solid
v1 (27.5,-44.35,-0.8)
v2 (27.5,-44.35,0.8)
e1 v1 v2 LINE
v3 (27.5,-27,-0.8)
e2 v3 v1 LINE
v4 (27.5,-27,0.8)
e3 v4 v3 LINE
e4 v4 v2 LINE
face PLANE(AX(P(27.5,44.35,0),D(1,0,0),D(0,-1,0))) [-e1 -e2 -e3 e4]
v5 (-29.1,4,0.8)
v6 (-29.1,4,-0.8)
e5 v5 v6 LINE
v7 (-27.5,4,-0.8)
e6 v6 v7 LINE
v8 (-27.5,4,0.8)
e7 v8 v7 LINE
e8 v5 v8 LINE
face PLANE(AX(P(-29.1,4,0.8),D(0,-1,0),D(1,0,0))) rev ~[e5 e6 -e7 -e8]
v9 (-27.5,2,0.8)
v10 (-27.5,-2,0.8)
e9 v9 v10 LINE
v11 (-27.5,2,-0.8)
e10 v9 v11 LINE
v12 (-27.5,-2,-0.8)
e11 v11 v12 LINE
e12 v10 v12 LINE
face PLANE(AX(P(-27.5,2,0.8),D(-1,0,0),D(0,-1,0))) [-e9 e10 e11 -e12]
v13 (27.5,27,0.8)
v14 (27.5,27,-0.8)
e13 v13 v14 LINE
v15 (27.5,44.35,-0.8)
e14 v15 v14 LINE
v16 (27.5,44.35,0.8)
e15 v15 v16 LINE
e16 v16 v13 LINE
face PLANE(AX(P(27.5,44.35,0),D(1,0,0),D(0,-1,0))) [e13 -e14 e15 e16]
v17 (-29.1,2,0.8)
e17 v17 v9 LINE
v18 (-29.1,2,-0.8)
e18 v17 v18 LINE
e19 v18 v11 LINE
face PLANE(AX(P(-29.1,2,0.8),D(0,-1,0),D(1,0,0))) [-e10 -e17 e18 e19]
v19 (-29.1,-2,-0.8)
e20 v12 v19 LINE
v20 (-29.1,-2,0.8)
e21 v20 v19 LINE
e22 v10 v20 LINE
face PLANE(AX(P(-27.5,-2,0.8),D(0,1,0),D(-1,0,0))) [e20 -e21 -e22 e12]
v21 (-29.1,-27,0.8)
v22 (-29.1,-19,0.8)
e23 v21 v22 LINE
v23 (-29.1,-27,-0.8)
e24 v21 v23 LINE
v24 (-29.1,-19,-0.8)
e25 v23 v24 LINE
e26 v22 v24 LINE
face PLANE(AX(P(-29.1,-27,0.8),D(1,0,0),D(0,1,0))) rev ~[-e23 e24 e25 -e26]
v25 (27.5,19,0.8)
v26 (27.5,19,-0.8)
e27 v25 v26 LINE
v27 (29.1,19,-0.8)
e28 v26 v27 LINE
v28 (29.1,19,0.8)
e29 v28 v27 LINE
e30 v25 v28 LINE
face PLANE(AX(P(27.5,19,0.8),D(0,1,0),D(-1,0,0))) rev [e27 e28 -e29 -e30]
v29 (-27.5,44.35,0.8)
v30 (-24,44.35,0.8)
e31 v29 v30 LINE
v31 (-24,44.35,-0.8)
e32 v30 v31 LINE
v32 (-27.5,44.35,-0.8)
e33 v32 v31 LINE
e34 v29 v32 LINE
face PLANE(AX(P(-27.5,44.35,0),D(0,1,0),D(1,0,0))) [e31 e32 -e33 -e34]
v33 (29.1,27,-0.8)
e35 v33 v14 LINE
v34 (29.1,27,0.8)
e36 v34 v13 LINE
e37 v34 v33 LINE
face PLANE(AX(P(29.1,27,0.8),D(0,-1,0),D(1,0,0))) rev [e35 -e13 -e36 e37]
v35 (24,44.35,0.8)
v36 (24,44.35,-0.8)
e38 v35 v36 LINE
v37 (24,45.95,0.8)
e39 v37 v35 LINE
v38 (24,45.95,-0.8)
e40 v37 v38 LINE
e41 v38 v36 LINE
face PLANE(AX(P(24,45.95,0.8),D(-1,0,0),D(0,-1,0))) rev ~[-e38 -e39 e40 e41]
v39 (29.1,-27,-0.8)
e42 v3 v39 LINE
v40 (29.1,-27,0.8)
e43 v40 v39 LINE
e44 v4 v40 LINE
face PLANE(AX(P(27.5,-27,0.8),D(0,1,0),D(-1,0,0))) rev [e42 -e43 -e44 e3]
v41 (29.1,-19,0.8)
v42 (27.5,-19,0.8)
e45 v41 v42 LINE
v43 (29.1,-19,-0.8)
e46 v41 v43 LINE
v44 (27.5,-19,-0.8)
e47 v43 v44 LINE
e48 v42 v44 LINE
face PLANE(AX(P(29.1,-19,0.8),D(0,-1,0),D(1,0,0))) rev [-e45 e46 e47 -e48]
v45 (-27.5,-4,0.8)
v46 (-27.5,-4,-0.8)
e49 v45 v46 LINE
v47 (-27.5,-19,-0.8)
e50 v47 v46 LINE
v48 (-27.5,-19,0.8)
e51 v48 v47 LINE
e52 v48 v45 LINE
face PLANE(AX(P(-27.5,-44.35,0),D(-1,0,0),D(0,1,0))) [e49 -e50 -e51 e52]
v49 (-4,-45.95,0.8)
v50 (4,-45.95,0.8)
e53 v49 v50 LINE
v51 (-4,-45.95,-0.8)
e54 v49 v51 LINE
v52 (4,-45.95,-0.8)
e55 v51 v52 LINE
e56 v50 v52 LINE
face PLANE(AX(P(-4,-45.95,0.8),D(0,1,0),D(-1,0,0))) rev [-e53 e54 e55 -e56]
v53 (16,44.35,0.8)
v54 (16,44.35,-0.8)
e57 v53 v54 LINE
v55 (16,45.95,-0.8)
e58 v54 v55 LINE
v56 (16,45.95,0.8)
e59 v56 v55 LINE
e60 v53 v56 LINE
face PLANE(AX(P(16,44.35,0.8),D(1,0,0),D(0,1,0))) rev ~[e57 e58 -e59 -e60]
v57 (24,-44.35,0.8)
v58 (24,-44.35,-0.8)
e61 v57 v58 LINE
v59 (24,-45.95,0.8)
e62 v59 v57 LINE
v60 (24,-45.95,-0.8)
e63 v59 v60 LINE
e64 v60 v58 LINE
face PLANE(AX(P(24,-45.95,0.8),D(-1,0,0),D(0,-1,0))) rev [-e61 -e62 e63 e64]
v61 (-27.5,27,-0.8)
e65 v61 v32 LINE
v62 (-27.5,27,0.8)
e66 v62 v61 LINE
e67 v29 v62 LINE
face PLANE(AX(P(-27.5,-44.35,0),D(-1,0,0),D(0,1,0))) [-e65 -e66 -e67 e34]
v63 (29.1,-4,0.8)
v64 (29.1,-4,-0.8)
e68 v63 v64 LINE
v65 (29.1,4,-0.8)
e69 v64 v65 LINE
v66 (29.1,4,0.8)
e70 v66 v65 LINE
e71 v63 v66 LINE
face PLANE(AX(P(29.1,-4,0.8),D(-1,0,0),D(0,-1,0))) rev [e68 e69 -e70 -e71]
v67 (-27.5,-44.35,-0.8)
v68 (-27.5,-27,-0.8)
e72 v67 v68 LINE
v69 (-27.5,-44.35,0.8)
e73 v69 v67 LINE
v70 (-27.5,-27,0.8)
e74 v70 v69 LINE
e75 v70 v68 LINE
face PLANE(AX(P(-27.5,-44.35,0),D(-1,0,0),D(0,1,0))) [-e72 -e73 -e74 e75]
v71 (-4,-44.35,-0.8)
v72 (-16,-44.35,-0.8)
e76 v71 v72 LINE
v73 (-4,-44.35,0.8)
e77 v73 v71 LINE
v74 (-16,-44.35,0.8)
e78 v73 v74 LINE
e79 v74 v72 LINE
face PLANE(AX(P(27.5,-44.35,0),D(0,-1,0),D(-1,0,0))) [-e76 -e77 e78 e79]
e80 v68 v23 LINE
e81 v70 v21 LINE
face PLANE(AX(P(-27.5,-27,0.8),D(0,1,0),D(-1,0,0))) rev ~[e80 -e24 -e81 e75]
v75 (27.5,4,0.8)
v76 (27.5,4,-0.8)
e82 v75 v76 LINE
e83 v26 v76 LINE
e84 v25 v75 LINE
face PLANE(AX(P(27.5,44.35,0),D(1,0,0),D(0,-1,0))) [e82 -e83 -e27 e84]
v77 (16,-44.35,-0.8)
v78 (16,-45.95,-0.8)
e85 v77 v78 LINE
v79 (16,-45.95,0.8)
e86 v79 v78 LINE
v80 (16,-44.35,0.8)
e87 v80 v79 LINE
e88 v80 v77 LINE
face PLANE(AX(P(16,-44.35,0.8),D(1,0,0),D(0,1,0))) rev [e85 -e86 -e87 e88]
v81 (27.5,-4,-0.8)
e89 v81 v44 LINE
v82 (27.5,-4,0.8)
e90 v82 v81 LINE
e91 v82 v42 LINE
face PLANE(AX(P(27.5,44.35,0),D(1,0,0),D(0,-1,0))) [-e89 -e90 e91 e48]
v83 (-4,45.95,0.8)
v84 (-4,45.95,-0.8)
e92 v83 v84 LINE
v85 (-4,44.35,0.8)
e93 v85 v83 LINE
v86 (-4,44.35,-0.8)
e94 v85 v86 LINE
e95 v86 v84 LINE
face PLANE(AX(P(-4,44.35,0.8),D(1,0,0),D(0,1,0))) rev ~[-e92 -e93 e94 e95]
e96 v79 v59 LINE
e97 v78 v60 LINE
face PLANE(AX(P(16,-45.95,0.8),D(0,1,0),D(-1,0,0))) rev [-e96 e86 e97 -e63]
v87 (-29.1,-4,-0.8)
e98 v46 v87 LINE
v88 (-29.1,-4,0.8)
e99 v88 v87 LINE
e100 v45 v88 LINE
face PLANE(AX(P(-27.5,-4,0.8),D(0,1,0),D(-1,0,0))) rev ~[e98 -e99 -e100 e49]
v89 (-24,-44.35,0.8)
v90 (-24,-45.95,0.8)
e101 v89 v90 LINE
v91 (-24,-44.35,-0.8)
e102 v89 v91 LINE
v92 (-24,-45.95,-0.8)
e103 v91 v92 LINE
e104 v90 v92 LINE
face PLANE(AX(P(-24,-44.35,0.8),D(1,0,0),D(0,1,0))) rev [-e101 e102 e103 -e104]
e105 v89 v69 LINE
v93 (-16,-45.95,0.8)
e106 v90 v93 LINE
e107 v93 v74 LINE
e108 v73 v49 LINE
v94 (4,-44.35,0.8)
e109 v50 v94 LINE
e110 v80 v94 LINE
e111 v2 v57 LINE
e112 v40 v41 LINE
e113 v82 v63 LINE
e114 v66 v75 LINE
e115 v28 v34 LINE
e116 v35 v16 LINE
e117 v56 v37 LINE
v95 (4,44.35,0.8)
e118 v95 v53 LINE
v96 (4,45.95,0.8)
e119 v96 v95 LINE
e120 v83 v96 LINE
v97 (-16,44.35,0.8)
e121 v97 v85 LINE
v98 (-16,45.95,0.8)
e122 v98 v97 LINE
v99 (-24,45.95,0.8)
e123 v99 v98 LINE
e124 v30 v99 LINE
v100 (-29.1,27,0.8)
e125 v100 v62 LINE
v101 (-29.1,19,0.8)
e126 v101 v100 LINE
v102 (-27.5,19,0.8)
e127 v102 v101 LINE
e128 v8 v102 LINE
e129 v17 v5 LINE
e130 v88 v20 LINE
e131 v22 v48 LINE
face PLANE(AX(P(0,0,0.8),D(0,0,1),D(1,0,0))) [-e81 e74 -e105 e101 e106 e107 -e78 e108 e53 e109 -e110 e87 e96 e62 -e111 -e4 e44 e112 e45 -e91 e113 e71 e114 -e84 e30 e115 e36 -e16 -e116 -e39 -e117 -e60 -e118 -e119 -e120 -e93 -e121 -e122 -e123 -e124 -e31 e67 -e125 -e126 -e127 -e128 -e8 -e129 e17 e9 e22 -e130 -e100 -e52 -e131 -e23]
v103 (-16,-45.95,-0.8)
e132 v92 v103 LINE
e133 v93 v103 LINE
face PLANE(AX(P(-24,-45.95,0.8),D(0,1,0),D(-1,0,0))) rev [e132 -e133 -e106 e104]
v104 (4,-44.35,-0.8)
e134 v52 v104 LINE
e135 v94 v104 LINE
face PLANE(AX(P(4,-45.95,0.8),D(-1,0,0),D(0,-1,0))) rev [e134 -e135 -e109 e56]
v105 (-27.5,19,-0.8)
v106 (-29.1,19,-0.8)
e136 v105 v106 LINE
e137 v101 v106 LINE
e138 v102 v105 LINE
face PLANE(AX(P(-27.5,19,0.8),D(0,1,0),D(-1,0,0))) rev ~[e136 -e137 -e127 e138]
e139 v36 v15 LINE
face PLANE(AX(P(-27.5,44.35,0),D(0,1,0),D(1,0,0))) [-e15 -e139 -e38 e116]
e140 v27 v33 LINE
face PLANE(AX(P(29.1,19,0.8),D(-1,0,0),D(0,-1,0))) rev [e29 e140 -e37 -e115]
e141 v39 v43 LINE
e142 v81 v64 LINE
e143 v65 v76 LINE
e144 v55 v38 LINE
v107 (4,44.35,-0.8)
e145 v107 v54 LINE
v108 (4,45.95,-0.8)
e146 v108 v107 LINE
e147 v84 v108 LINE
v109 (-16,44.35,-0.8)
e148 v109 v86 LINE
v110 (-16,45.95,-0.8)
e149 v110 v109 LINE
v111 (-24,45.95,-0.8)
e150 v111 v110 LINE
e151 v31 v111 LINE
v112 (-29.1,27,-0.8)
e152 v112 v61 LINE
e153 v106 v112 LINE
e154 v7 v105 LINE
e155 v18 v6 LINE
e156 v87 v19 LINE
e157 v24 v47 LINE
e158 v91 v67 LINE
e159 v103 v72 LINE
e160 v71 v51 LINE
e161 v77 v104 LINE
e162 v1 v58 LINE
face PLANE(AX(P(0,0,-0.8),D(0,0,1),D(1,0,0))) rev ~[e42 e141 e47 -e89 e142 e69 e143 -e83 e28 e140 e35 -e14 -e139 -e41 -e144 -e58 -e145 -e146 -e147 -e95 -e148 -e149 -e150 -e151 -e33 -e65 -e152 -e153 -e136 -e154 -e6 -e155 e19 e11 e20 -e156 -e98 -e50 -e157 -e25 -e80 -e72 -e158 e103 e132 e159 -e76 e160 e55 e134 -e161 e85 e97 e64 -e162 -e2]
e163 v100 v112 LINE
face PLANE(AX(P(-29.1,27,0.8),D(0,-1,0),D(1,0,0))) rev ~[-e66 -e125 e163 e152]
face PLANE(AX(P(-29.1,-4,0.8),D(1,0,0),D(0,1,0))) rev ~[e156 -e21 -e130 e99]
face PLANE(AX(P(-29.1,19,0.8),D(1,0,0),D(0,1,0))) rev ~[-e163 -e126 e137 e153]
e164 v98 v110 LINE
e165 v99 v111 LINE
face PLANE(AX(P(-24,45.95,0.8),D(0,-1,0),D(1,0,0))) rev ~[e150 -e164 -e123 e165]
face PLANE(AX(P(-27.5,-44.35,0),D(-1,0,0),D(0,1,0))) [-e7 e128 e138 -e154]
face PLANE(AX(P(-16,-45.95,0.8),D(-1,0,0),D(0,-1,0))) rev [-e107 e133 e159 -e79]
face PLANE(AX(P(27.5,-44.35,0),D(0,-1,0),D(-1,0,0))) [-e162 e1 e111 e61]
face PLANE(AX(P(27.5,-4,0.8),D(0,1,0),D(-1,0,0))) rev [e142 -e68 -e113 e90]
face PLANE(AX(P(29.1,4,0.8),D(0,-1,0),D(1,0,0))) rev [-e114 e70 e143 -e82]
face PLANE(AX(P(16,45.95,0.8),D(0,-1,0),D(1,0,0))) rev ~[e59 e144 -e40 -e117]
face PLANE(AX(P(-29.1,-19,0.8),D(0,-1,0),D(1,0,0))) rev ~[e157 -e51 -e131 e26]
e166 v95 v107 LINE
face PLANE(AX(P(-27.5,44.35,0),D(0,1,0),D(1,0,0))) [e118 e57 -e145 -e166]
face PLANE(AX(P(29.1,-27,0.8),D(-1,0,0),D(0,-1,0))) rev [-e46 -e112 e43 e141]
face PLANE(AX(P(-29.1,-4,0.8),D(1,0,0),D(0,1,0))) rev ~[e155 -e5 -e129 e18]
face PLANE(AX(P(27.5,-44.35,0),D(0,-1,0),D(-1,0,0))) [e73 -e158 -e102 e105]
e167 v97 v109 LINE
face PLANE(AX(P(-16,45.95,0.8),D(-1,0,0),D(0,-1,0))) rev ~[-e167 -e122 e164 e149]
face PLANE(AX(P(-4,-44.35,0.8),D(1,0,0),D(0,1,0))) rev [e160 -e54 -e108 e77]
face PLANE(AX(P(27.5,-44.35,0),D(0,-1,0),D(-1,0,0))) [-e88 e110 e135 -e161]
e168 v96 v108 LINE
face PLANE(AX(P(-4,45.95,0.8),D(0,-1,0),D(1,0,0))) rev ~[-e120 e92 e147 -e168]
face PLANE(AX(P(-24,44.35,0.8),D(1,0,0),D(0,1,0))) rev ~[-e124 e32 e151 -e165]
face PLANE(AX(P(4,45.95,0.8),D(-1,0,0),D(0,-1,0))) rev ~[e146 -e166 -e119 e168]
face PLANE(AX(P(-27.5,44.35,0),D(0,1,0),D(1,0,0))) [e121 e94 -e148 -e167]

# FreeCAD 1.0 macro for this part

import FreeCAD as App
import Part
import Sketcher

doc = App.newDocument("Part")
body = doc.addObject("PartDesign::Body", "Body")

# Sketch on XY plane
sketch1 = doc.addObject("Sketcher::SketchObject", "Sketch")
body.addObject(sketch1)
sketch1.AttachmentSupport = (doc.XY_Plane, [""])
sketch1.MapMode = "FlatFace"
sketch1.addGeometry([
    Part.LineSegment(App.Vector(-28, -44, 0), App.Vector(28, -44, 0)),
    Part.LineSegment(App.Vector(28, -44, 0), App.Vector(28, 44, 0)),
    Part.LineSegment(App.Vector(28, 44, 0), App.Vector(-28, 44, 0)),
    Part.LineSegment(App.Vector(-28, 44, 0), App.Vector(-28, -44, 0)),
], False)
sketch1.addConstraint([
    Sketcher.Constraint("Coincident", 0, 2, 1, 1),
    Sketcher.Constraint("Coincident", 1, 2, 2, 1),
    Sketcher.Constraint("Coincident", 2, 2, 3, 1),
    Sketcher.Constraint("Coincident", 3, 2, 0, 1),
    Sketcher.Constraint("Horizontal", 0),
    Sketcher.Constraint("Vertical", 1),
    Sketcher.Constraint("Horizontal", 2),
    Sketcher.Constraint("Vertical", 3),
    Sketcher.Constraint("Symmetric", 0, 2, 2, 2, -1, 1),
    Sketcher.Constraint("DistanceX", 0, 1, 0, 2, 55.0),
    Sketcher.Constraint("DistanceY", 1, 1, 1, 2, 88.7),
])
pad1 = doc.addObject("PartDesign::Pad", "Pad")
body.addObject(pad1)
pad1.Profile = sketch1
pad1.Length = 1.6
pad1.Midplane = True

# Sketch on XY plane
sketch2 = doc.addObject("Sketcher::SketchObject", "Sketch001")
body.addObject(sketch2)
sketch2.AttachmentSupport = (doc.XY_Plane, [""])
sketch2.MapMode = "FlatFace"
sketch2.AttachmentOffset = App.Placement(App.Vector(0, 0, 0.8), App.Rotation())
sketch2.addGeometry([
    Part.LineSegment(App.Vector(-29.1, -27, 0), App.Vector(-27.5, -27, 0)),  # 0
    Part.LineSegment(App.Vector(-27.5, -27, 0), App.Vector(-27.5, -19, 0)),  # 1
    Part.LineSegment(App.Vector(-27.5, -19, 0), App.Vector(-29.1, -19, 0)),  # 2
    Part.LineSegment(App.Vector(-29.1, -19, 0), App.Vector(-29.1, -27, 0)),  # 3
    Part.LineSegment(App.Vector(-29.1, -4, 0), App.Vector(-27.5, -4, 0)),  # 4
    Part.LineSegment(App.Vector(-27.5, -4, 0), App.Vector(-27.5, 4, 0)),  # 5
    Part.LineSegment(App.Vector(-27.5, 4, 0), App.Vector(-29.1, 4, 0)),  # 6
    Part.LineSegment(App.Vector(-29.1, 4, 0), App.Vector(-29.1, -4, 0)),  # 7
    Part.LineSegment(App.Vector(-29.1, 19, 0), App.Vector(-27.5, 19, 0)),  # 8
    Part.LineSegment(App.Vector(-27.5, 19, 0), App.Vector(-27.5, 27, 0)),  # 9
    Part.LineSegment(App.Vector(-27.5, 27, 0), App.Vector(-29.1, 27, 0)),  # 10
    Part.LineSegment(App.Vector(-29.1, 27, 0), App.Vector(-29.1, 19, 0)),  # 11
], False)
sketch2.addConstraint([
    Sketcher.Constraint("Coincident", 0, 2, 1, 1),
    Sketcher.Constraint("Coincident", 1, 2, 2, 1),
    Sketcher.Constraint("Coincident", 2, 2, 3, 1),
    Sketcher.Constraint("Coincident", 3, 2, 0, 1),
    Sketcher.Constraint("Coincident", 4, 2, 5, 1),
    Sketcher.Constraint("Coincident", 5, 2, 6, 1),
    Sketcher.Constraint("Coincident", 6, 2, 7, 1),
    Sketcher.Constraint("Coincident", 7, 2, 4, 1),
    Sketcher.Constraint("Coincident", 8, 2, 9, 1),
    Sketcher.Constraint("Coincident", 9, 2, 10, 1),
    Sketcher.Constraint("Coincident", 10, 2, 11, 1),
    Sketcher.Constraint("Coincident", 11, 2, 8, 1),
    Sketcher.Constraint("Horizontal", 0),
    Sketcher.Constraint("Vertical", 1),
    Sketcher.Constraint("Horizontal", 2),
    Sketcher.Constraint("Vertical", 3),
    Sketcher.Constraint("Horizontal", 4),
    Sketcher.Constraint("Vertical", 5),
    Sketcher.Constraint("Horizontal", 6),
    Sketcher.Constraint("Vertical", 7),
    Sketcher.Constraint("Horizontal", 8),
    Sketcher.Constraint("Vertical", 9),
    Sketcher.Constraint("Horizontal", 10),
    Sketcher.Constraint("Vertical", 11),
    Sketcher.Constraint("Symmetric", 1, 2, 8, 2, -1),
    Sketcher.Constraint("Symmetric", 3, 2, 10, 2, -1),
    Sketcher.Constraint("Vertical", 1, 2, 4, 2),
    Sketcher.Constraint("Vertical", 3, 2, 6, 2),
    Sketcher.Constraint("Equal", 3, 5),
    Sketcher.Constraint("DistanceY", 1, 1, 1, 2, 8.0),
    Sketcher.Constraint("DistanceX", 0, 1, 0, 2, 1.6),
    Sketcher.Constraint("DistanceY", 0, 2, 4, 2, 23.0),
    Sketcher.Constraint("DistanceY", 4, 2, 8, 2, 23.0),
    Sketcher.Constraint("DistanceX", 0, 2, -1, 1, 27.5),
])
pad2 = doc.addObject("PartDesign::Pad", "Pad001")
body.addObject(pad2)
pad2.Profile = sketch2
pad2.Length = 1.6
pad2.Reversed = True
doc.recompute()

mirrored = doc.addObject("PartDesign::Mirrored", "Mirrored")
body.addObject(mirrored)
mirrored.Originals = [pad2]
mirrored.MirrorPlane = (doc.YZ_Plane, [""])
body.Tip = mirrored

# Sketch on XY plane
sketch3 = doc.addObject("Sketcher::SketchObject", "Sketch002")
body.addObject(sketch3)
sketch3.AttachmentSupport = (doc.XY_Plane, [""])
sketch3.MapMode = "FlatFace"
sketch3.AttachmentOffset = App.Placement(App.Vector(0, 0, 0.8), App.Rotation())
sketch3.addGeometry([
    Part.LineSegment(App.Vector(16, 44.4, 0), App.Vector(24, 44.4, 0)),  # 0
    Part.LineSegment(App.Vector(24, 44.4, 0), App.Vector(24, 46, 0)),  # 1
    Part.LineSegment(App.Vector(24, 46, 0), App.Vector(16, 46, 0)),  # 2
    Part.LineSegment(App.Vector(16, 46, 0), App.Vector(16, 44.4, 0)),  # 3
    Part.LineSegment(App.Vector(-4, 44.4, 0), App.Vector(4, 44.4, 0)),  # 4
    Part.LineSegment(App.Vector(4, 44.4, 0), App.Vector(4, 46, 0)),  # 5
    Part.LineSegment(App.Vector(4, 46, 0), App.Vector(-4, 46, 0)),  # 6
    Part.LineSegment(App.Vector(-4, 46, 0), App.Vector(-4, 44.4, 0)),  # 7
    Part.LineSegment(App.Vector(-24, 44.4, 0), App.Vector(-16, 44.4, 0)),  # 8
    Part.LineSegment(App.Vector(-16, 44.4, 0), App.Vector(-16, 46, 0)),  # 9
    Part.LineSegment(App.Vector(-16, 46, 0), App.Vector(-24, 46, 0)),  # 10
    Part.LineSegment(App.Vector(-24, 46, 0), App.Vector(-24, 44.4, 0)),  # 11
], False)
sketch3.addConstraint([
    Sketcher.Constraint("Coincident", 0, 2, 1, 1),
    Sketcher.Constraint("Coincident", 1, 2, 2, 1),
    Sketcher.Constraint("Coincident", 2, 2, 3, 1),
    Sketcher.Constraint("Coincident", 3, 2, 0, 1),
    Sketcher.Constraint("Coincident", 4, 2, 5, 1),
    Sketcher.Constraint("Coincident", 5, 2, 6, 1),
    Sketcher.Constraint("Coincident", 6, 2, 7, 1),
    Sketcher.Constraint("Coincident", 7, 2, 4, 1),
    Sketcher.Constraint("Coincident", 8, 2, 9, 1),
    Sketcher.Constraint("Coincident", 9, 2, 10, 1),
    Sketcher.Constraint("Coincident", 10, 2, 11, 1),
    Sketcher.Constraint("Coincident", 11, 2, 8, 1),
    Sketcher.Constraint("Horizontal", 0),
    Sketcher.Constraint("Vertical", 1),
    Sketcher.Constraint("Horizontal", 2),
    Sketcher.Constraint("Vertical", 3),
    Sketcher.Constraint("Horizontal", 4),
    Sketcher.Constraint("Vertical", 5),
    Sketcher.Constraint("Horizontal", 6),
    Sketcher.Constraint("Vertical", 7),
    Sketcher.Constraint("Horizontal", 8),
    Sketcher.Constraint("Vertical", 9),
    Sketcher.Constraint("Horizontal", 10),
    Sketcher.Constraint("Vertical", 11),
    Sketcher.Constraint("Symmetric", 3, 2, 8, 2, -2),
    Sketcher.Constraint("Symmetric", 1, 2, 10, 2, -2),
    Sketcher.Constraint("Horizontal", 3, 2, 4, 2),
    Sketcher.Constraint("Horizontal", 2, 2, 5, 2),
    Sketcher.Constraint("Equal", 2, 4),
    Sketcher.Constraint("DistanceX", 0, 1, 0, 2, 8.0),
    Sketcher.Constraint("DistanceY", 1, 1, 1, 2, 1.6),
    Sketcher.Constraint("DistanceX", 4, 2, 0, 2, 20.0),
    Sketcher.Constraint("DistanceX", 8, 2, 4, 2, 20.0),
    Sketcher.Constraint("DistanceY", -1, 1, 0, 2, 44.35),
])
pad3 = doc.addObject("PartDesign::Pad", "Pad002")
body.addObject(pad3)
pad3.Profile = sketch3
pad3.Length = 1.6
pad3.Reversed = True
doc.recompute()

mirrored2 = doc.addObject("PartDesign::Mirrored", "Mirrored001")
body.addObject(mirrored2)
mirrored2.Originals = [pad3]
mirrored2.MirrorPlane = (doc.XZ_Plane, [""])
body.Tip = mirrored2

# Sketch on XY plane
sketch4 = doc.addObject("Sketcher::SketchObject", "Sketch003")
body.addObject(sketch4)
sketch4.AttachmentSupport = (doc.XY_Plane, [""])
sketch4.MapMode = "FlatFace"
sketch4.AttachmentOffset = App.Placement(App.Vector(0, 0, 0.8), App.Rotation())
sketch4.addGeometry([
    Part.LineSegment(App.Vector(-29.1, 31, 0), App.Vector(-27.5, 31, 0)),  # 0
    Part.LineSegment(App.Vector(-27.5, 31, 0), App.Vector(-27.5, 39, 0)),  # 1
    Part.LineSegment(App.Vector(-27.5, 39, 0), App.Vector(-29.1, 39, 0)),  # 2
    Part.LineSegment(App.Vector(-29.1, 39, 0), App.Vector(-29.1, 44.4, 0)),  # 3
    Part.LineSegment(App.Vector(-29.1, 44.4, 0), App.Vector(-44.1, 44.4, 0)),  # 4
    Part.LineSegment(App.Vector(-44.1, 44.4, 0), App.Vector(-44.1, -44.4, 0)),  # 5
    Part.LineSegment(App.Vector(-44.1, -44.4, 0), App.Vector(-40.6, -44.4, 0)),  # 6
    Part.LineSegment(App.Vector(-40.6, -44.4, 0), App.Vector(-40.6, -46, 0)),  # 7
    Part.LineSegment(App.Vector(-40.6, -46, 0), App.Vector(-32.6, -46, 0)),  # 8
    Part.LineSegment(App.Vector(-32.6, -46, 0), App.Vector(-32.6, -44.4, 0)),  # 9
    Part.LineSegment(App.Vector(-32.6, -44.4, 0), App.Vector(-29.1, -44.4, 0)),  # 10
    Part.LineSegment(App.Vector(-29.1, -44.4, 0), App.Vector(-29.1, -39, 0)),  # 11
    Part.LineSegment(App.Vector(-29.1, -39, 0), App.Vector(-27.5, -39, 0)),  # 12
    Part.LineSegment(App.Vector(-27.5, -39, 0), App.Vector(-27.5, -31, 0)),  # 13
    Part.LineSegment(App.Vector(-27.5, -31, 0), App.Vector(-29.1, -31, 0)),  # 14
    Part.LineSegment(App.Vector(-29.1, -31, 0), App.Vector(-29.1, -2, 0)),  # 15
    Part.LineSegment(App.Vector(-29.1, -2, 0), App.Vector(-27.5, -2, 0)),  # 16
    Part.LineSegment(App.Vector(-27.5, -2, 0), App.Vector(-27.5, 2, 0)),  # 17
    Part.LineSegment(App.Vector(-27.5, 2, 0), App.Vector(-29.1, 2, 0)),  # 18
    Part.LineSegment(App.Vector(-29.1, 2, 0), App.Vector(-29.1, 31, 0)),  # 19
], False)
sketch4.addConstraint([
    Sketcher.Constraint("Coincident", 0, 2, 1, 1),
    Sketcher.Constraint("Coincident", 1, 2, 2, 1),
    Sketcher.Constraint("Coincident", 2, 2, 3, 1),
    Sketcher.Constraint("Coincident", 3, 2, 4, 1),
    Sketcher.Constraint("Coincident", 4, 2, 5, 1),
    Sketcher.Constraint("Coincident", 5, 2, 6, 1),
    Sketcher.Constraint("Coincident", 6, 2, 7, 1),
    Sketcher.Constraint("Coincident", 7, 2, 8, 1),
    Sketcher.Constraint("Coincident", 8, 2, 9, 1),
    Sketcher.Constraint("Coincident", 9, 2, 10, 1),
    Sketcher.Constraint("Coincident", 10, 2, 11, 1),
    Sketcher.Constraint("Coincident", 11, 2, 12, 1),
    Sketcher.Constraint("Coincident", 12, 2, 13, 1),
    Sketcher.Constraint("Coincident", 13, 2, 14, 1),
    Sketcher.Constraint("Coincident", 14, 2, 15, 1),
    Sketcher.Constraint("Coincident", 15, 2, 16, 1),
    Sketcher.Constraint("Coincident", 16, 2, 17, 1),
    Sketcher.Constraint("Coincident", 17, 2, 18, 1),
    Sketcher.Constraint("Coincident", 18, 2, 19, 1),
    Sketcher.Constraint("Coincident", 19, 2, 0, 1),
    Sketcher.Constraint("Horizontal", 0),
    Sketcher.Constraint("Vertical", 1),
    Sketcher.Constraint("Horizontal", 2),
    Sketcher.Constraint("Vertical", 3),
    Sketcher.Constraint("Horizontal", 4),
    Sketcher.Constraint("Vertical", 5),
    Sketcher.Constraint("Horizontal", 6),
    Sketcher.Constraint("Vertical", 7),
    Sketcher.Constraint("Horizontal", 8),
    Sketcher.Constraint("Vertical", 9),
    Sketcher.Constraint("Horizontal", 10),
    Sketcher.Constraint("Vertical", 11),
    Sketcher.Constraint("Horizontal", 12),
    Sketcher.Constraint("Vertical", 13),
    Sketcher.Constraint("Horizontal", 14),
    Sketcher.Constraint("Vertical", 15),
    Sketcher.Constraint("Horizontal", 16),
    Sketcher.Constraint("Vertical", 17),
    Sketcher.Constraint("Horizontal", 18),
    Sketcher.Constraint("Vertical", 19),
    Sketcher.Constraint("Symmetric", 3, 2, 10, 2, -1),
    Sketcher.Constraint("Symmetric", 1, 2, 12, 2, -1),
    Sketcher.Constraint("Symmetric", 15, 2, 18, 2, -1),
    Sketcher.Constraint("Horizontal", 6, 2, 9, 2),
    Sketcher.Constraint("Vertical", 11, 2, 14, 2),
    Sketcher.Constraint("Vertical", 13, 2, 16, 2),
    Sketcher.Constraint("Equal", 6, 10),
    Sketcher.Constraint("Equal", 8, 1),
    Sketcher.Constraint("Equal", 18, 7),
    Sketcher.Constraint("Equal", 1, 13),
    Sketcher.Constraint("DistanceX", 4, 2, 4, 1, 15.0),
    Sketcher.Constraint("DistanceX", 8, 1, 8, 2, 8.0),
    Sketcher.Constraint("DistanceY", 15, 1, 15, 2, 29.0),
    Sketcher.Constraint("DistanceY", 17, 1, 17, 2, 4.0),
    Sketcher.Constraint("DistanceX", 0, 1, 0, 2, 1.6),
    Sketcher.Constraint("DistanceY", 5, 2, 5, 1, 88.7),
    Sketcher.Constraint("DistanceX", 0, 2, -1, 1, 27.5),
])
pocket1 = doc.addObject("PartDesign::Pocket", "Pocket")
body.addObject(pocket1)
pocket1.Profile = sketch4
pocket1.Length = 1.6

doc.recompute()
